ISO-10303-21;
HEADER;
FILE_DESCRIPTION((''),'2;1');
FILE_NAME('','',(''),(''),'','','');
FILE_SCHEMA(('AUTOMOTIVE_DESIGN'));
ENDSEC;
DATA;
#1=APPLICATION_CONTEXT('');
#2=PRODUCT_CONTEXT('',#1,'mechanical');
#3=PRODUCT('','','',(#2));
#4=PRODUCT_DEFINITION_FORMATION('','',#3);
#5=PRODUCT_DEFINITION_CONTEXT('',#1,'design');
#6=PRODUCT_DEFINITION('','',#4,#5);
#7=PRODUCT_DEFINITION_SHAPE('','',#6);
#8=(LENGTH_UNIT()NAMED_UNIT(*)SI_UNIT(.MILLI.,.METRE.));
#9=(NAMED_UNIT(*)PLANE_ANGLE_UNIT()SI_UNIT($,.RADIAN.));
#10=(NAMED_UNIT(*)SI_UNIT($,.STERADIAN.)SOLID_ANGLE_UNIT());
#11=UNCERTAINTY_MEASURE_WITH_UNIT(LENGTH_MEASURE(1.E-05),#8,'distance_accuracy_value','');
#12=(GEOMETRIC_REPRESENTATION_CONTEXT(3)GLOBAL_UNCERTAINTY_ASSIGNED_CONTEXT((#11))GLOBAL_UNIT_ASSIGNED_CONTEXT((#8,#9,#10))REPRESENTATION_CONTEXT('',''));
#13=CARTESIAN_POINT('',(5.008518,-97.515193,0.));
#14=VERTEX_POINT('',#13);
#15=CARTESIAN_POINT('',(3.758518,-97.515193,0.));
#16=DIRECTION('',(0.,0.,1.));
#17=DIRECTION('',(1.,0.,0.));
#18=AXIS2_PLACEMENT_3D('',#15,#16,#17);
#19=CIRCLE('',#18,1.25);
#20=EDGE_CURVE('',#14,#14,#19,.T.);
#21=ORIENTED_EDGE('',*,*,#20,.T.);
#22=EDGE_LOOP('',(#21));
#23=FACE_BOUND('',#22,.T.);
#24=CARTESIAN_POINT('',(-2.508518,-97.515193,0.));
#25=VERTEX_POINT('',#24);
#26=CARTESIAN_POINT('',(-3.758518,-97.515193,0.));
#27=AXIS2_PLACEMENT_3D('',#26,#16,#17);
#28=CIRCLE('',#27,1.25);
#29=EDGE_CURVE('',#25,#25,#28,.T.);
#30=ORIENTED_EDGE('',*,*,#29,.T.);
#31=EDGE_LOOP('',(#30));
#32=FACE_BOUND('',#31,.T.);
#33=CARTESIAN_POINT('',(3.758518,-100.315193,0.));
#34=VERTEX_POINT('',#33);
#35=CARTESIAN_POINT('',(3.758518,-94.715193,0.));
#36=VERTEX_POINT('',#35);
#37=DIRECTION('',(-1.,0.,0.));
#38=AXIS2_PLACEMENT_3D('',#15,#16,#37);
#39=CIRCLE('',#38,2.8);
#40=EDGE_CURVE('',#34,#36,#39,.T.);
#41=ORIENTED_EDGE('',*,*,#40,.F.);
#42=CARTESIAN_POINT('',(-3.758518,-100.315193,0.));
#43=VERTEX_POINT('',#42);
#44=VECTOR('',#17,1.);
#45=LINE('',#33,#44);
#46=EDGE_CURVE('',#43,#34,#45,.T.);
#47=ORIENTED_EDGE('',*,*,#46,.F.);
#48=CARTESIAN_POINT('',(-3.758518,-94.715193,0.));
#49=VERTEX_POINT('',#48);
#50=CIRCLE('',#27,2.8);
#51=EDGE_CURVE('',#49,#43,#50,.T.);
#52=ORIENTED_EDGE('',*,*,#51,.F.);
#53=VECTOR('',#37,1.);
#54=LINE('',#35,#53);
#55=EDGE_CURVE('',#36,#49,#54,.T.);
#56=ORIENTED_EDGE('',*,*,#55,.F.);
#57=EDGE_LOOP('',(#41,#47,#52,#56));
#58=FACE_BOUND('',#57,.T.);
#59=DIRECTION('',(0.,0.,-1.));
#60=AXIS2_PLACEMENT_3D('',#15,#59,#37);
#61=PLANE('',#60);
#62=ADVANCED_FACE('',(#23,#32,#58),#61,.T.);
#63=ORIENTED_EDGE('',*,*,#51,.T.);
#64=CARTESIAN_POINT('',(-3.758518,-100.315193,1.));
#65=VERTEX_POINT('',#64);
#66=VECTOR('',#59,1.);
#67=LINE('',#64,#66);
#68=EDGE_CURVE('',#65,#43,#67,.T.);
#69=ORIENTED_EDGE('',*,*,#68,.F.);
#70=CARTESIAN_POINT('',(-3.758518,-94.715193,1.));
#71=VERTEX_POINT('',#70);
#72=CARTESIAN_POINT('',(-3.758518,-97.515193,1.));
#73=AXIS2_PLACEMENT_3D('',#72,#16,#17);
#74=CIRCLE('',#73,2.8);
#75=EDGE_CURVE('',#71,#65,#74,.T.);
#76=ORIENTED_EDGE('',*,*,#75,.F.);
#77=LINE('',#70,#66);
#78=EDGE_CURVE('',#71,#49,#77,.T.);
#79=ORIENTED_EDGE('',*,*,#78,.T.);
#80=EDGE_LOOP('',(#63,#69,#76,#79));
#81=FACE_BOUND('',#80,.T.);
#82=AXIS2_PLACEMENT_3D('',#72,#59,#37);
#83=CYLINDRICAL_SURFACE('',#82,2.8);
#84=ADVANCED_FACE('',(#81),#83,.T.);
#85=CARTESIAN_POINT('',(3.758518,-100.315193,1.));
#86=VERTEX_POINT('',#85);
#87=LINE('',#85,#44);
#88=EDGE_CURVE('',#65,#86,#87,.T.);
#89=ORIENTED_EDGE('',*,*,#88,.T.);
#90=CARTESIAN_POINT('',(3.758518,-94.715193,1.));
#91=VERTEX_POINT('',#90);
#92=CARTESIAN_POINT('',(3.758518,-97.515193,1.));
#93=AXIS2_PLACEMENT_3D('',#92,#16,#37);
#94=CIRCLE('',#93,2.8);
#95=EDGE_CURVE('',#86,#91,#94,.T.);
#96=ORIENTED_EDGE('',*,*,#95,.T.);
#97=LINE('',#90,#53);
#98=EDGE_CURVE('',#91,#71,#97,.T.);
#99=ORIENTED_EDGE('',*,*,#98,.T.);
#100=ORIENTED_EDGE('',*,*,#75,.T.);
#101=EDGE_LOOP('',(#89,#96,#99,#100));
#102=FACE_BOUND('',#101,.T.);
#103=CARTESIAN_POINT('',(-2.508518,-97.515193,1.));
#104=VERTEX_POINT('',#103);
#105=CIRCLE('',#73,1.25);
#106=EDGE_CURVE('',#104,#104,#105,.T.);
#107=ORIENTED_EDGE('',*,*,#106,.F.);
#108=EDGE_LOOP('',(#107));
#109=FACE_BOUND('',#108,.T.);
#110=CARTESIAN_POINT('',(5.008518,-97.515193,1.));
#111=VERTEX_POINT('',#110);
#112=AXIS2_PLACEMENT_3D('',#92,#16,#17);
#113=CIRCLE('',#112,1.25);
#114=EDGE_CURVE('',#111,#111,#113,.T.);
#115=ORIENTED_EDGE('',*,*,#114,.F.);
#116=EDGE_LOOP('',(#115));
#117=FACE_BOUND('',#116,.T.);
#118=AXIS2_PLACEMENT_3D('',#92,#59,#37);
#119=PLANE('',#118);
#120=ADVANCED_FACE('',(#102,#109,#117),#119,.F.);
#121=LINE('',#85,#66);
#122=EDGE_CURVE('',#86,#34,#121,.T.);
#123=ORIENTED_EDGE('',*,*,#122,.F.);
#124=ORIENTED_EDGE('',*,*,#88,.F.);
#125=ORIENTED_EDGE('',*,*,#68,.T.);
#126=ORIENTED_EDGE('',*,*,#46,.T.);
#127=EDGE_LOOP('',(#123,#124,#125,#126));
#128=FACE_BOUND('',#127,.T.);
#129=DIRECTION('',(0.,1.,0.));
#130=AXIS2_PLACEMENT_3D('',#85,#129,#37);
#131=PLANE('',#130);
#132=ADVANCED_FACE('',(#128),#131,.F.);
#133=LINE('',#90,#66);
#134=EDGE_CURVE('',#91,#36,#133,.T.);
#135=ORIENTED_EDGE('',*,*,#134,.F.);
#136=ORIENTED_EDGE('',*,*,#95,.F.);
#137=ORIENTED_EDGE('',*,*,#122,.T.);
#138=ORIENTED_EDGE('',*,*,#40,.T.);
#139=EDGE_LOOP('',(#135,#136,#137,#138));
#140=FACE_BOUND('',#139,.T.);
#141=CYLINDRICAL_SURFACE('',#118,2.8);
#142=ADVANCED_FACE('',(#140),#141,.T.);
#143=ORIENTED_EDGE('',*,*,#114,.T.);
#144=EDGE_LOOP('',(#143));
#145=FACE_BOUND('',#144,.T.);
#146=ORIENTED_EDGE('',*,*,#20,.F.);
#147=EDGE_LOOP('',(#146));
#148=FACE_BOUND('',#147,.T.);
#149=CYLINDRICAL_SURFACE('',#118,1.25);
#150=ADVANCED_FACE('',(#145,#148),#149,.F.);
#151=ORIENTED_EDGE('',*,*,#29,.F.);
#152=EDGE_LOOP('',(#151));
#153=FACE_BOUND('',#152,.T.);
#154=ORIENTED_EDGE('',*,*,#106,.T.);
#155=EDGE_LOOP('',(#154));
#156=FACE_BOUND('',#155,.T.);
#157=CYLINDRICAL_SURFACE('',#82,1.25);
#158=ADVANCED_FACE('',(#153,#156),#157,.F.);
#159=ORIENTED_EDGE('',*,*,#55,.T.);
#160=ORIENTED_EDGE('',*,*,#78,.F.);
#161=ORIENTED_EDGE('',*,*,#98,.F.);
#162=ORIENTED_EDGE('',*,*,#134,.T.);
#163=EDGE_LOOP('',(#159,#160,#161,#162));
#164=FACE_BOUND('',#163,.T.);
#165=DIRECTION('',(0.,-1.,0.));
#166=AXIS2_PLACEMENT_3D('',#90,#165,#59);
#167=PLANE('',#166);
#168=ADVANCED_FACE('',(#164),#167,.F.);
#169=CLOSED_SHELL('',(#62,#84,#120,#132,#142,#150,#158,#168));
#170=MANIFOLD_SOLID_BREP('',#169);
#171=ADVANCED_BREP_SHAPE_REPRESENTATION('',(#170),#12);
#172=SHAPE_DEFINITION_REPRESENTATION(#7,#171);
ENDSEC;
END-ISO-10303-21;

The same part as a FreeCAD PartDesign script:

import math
import FreeCAD as App
import Part
import Sketcher

V = App.Vector
Q = App.Units.Quantity

doc = App.newDocument("Part")
params = doc.addObject("Spreadsheet::Sheet", "Params")
for row, (alias, value) in enumerate([
    ("sketch1_diameter", "2.5 mm"),
    ("sketch1_radius", "2.8 mm"),
    ("pad1_length", "1 mm"),
], start=1):
    params.set(f"A{row}", alias)
    params.set(f"B{row}", "=" + value)
    params.setAlias(f"B{row}", alias)

body = doc.addObject("PartDesign::Body", "Body")

# Sketch on XY plane
sketch1 = body.newObject("Sketcher::SketchObject", "Sketch")
sketch1.AttachmentSupport = (doc.getObject("XY_Plane"), [""])
sketch1.MapMode = "FlatFace"
sketch1.addGeometry(Part.LineSegment(V(3.8, -94.7, 0), V(-3.8, -94.7, 0)), False)
sketch1.addGeometry(Part.ArcOfCircle(Part.Circle(V(-3.8, -97.5, 0), V(0, 0, 1), 2.8), math.radians(90), math.radians(270)), False)
sketch1.addGeometry(Part.LineSegment(V(-3.8, -100.3, 0), V(3.8, -100.3, 0)), False)
sketch1.addGeometry(Part.ArcOfCircle(Part.Circle(V(3.8, -97.5, 0), V(0, 0, 1), 2.8), math.radians(-90), math.radians(90)), False)
sketch1.addGeometry(Part.Circle(V(-3.8, -97.5, 0), V(0, 0, 1), 1.2), False)
sketch1.addGeometry(Part.Circle(V(3.8, -97.5, 0), V(0, 0, 1), 1.3), False)
sketch1.addConstraint(Sketcher.Constraint("Tangent", 0, 2, 1, 1))
sketch1.addConstraint(Sketcher.Constraint("Tangent", 1, 2, 2, 1))
sketch1.addConstraint(Sketcher.Constraint("Tangent", 2, 2, 3, 1))
sketch1.addConstraint(Sketcher.Constraint("Tangent", 3, 2, 0, 1))
sketch1.addConstraint(Sketcher.Constraint("Horizontal", 0))
sketch1.addConstraint(Sketcher.Constraint("Horizontal", 2))
sketch1.addConstraint(Sketcher.Constraint("Coincident", 4, 3, 1, 3))
sketch1.addConstraint(Sketcher.Constraint("Coincident", 5, 3, 3, 3))
sketch1.addConstraint(Sketcher.Constraint("Equal", 4, 5))
sketch1.addConstraint(Sketcher.Constraint("Diameter", 4, Q("2.5 mm")))
sketch1.addConstraint(Sketcher.Constraint("Radius", 1, Q("2.8 mm")))
sketch1.addConstraint(Sketcher.Constraint("DistanceX", 0, 2, 0, 1, Q("7.517036 mm")))
sketch1.addConstraint(Sketcher.Constraint("DistanceX", 1, 3, -1, 1, Q("3.758518 mm")))
sketch1.addConstraint(Sketcher.Constraint("DistanceY", 1, 3, -1, 1, Q("97.515193 mm")))
sketch1.setExpression("Constraints[9]", "Params.sketch1_diameter")
sketch1.setExpression("Constraints[10]", "Params.sketch1_radius")
pad1 = body.newObject("PartDesign::Pad", "Pad")
pad1.Profile = sketch1
pad1.setExpression("Length", "Params.pad1_length")

doc.recompute()
